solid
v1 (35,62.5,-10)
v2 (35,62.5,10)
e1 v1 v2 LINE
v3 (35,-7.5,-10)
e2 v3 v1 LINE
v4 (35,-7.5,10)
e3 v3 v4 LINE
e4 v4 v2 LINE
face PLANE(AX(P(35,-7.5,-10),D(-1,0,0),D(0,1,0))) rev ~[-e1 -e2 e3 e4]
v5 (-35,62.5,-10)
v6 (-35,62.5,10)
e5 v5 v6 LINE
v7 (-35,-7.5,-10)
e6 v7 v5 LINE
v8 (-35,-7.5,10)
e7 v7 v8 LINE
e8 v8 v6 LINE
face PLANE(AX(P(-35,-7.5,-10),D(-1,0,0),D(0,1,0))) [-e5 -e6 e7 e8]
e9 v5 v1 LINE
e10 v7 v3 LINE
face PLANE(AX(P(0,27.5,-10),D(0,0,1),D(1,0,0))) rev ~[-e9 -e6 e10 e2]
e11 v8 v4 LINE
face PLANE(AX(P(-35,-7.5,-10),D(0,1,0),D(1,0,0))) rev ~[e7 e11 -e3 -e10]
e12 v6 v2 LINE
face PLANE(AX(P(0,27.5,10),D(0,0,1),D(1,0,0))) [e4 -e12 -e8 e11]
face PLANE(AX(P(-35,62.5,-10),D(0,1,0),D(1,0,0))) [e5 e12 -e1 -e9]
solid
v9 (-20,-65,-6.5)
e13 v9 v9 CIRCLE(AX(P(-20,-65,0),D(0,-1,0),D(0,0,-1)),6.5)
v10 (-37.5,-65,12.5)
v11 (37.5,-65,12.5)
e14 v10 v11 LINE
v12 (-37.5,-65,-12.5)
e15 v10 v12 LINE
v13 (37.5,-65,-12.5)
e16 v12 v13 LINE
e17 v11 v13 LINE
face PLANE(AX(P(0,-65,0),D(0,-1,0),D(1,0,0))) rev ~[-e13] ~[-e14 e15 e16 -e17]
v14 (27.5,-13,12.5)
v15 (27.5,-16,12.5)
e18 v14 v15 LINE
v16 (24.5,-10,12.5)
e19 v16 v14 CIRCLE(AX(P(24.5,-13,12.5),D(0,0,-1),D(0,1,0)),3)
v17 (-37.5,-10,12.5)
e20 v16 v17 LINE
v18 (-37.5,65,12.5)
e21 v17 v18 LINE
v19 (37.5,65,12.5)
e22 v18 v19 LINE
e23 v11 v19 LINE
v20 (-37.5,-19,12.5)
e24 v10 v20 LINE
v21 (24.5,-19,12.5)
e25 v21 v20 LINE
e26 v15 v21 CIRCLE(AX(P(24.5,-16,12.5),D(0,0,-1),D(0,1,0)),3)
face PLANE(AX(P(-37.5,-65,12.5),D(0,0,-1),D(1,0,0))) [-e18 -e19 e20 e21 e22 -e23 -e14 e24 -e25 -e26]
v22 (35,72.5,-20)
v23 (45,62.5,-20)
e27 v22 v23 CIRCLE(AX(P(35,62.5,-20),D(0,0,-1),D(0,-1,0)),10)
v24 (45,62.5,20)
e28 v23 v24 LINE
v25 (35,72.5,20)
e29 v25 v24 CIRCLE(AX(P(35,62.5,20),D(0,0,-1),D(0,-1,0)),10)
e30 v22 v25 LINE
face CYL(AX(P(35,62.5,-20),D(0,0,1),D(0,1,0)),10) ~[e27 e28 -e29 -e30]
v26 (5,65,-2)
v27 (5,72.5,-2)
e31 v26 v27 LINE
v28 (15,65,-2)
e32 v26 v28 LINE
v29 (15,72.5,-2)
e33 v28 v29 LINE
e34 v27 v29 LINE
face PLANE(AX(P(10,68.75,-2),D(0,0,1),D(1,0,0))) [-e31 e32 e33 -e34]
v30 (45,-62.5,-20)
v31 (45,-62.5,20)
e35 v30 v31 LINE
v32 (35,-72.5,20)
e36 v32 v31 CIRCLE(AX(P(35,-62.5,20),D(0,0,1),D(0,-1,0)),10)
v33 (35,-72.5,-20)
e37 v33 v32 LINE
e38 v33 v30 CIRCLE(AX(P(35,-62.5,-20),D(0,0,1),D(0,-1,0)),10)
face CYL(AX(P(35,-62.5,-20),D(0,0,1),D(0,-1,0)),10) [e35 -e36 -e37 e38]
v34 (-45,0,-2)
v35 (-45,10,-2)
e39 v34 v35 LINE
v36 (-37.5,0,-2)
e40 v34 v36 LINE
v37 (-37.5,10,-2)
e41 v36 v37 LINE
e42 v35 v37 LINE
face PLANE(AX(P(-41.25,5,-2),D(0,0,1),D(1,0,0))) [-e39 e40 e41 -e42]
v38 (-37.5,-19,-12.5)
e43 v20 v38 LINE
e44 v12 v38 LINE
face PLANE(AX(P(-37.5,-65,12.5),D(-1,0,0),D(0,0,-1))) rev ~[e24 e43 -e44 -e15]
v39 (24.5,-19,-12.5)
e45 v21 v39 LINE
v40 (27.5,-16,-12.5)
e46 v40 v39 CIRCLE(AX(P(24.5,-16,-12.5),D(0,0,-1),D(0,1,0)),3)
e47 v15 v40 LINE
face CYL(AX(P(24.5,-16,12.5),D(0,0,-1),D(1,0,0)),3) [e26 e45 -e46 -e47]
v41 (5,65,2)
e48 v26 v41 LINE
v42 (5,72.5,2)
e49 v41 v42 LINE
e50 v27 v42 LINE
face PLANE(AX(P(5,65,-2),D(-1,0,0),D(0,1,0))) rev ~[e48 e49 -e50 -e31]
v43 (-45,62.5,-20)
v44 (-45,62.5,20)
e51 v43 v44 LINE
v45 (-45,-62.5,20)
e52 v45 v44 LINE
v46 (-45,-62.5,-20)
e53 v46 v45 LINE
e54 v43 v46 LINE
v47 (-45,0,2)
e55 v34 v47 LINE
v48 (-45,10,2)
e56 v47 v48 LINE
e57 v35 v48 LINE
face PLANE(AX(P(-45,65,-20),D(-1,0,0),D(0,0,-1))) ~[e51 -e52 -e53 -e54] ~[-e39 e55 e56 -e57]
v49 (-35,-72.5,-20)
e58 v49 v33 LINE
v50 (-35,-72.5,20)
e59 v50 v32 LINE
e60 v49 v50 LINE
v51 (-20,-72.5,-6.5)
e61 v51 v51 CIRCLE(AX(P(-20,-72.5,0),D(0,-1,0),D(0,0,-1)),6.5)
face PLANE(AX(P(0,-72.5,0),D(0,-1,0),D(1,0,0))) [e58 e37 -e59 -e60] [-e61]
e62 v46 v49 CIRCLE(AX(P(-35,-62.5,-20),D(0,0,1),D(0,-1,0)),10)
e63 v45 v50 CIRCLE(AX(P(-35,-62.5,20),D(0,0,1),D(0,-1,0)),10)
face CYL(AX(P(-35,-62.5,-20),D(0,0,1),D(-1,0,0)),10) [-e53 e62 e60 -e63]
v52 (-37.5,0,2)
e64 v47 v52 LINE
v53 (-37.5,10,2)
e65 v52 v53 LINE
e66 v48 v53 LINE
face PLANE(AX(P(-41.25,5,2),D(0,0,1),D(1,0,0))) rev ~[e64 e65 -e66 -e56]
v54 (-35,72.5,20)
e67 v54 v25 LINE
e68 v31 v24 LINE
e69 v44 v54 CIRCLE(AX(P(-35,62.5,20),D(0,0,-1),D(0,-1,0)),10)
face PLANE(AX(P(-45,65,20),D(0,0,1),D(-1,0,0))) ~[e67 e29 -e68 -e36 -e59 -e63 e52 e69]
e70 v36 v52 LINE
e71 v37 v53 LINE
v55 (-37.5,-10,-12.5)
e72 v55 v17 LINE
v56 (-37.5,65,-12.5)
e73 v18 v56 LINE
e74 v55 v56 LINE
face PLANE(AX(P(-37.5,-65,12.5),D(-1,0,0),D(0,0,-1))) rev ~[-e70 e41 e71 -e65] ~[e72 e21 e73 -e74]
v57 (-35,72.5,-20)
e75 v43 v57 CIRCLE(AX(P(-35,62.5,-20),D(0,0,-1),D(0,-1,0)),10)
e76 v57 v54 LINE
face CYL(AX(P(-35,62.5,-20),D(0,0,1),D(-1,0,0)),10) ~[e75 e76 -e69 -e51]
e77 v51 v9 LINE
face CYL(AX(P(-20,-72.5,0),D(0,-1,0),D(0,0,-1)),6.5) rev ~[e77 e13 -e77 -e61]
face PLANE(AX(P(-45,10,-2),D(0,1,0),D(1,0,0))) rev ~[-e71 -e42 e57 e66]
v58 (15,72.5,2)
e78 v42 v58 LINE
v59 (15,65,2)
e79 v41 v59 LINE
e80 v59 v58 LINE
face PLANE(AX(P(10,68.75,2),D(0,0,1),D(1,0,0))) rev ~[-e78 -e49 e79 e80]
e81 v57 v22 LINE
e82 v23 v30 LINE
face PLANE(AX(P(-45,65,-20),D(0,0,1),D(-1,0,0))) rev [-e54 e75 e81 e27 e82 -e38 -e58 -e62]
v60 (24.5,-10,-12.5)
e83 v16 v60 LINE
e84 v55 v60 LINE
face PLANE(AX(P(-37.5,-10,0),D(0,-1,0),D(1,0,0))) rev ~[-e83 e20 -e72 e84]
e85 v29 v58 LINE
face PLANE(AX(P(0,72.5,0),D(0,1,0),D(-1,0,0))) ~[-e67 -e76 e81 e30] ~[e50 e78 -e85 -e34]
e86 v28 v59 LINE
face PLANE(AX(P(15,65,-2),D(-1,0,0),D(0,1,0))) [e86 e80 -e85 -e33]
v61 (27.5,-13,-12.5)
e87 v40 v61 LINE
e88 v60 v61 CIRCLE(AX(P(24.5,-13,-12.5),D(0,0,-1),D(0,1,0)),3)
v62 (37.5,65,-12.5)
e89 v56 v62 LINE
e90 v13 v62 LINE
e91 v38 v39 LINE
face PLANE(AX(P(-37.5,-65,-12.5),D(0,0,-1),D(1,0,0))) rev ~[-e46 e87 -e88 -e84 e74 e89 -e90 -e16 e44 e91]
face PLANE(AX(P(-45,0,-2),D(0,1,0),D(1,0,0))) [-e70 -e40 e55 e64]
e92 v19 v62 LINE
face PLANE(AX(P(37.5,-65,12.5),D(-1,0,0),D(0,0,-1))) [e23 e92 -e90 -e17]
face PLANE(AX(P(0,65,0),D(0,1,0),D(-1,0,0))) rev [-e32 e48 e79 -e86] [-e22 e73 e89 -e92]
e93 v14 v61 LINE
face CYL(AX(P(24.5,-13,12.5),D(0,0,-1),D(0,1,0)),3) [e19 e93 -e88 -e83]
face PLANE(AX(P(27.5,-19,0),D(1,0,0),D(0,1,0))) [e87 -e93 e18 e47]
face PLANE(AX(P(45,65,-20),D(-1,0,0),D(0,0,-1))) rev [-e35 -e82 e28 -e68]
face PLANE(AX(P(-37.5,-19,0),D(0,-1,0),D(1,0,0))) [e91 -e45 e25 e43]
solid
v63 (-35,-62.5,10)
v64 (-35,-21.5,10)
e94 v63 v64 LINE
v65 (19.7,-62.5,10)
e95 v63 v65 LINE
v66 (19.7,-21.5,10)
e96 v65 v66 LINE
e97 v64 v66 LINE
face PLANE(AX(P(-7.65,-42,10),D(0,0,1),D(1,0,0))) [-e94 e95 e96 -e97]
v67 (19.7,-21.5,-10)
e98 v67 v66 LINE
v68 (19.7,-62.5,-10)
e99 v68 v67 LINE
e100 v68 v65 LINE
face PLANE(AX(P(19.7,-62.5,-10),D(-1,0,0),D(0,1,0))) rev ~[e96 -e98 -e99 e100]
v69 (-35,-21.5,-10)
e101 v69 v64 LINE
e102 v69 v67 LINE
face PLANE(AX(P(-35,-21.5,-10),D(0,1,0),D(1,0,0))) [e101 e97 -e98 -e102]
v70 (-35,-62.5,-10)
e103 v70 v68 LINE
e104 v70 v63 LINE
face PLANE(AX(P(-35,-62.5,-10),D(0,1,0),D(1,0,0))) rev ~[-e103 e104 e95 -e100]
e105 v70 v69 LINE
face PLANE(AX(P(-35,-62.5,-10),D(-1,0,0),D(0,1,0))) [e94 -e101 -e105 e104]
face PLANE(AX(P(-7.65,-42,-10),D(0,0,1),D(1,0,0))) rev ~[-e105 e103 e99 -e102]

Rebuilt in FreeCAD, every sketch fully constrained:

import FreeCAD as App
import Part
import Sketcher
Q = App.Units.Quantity


def edges_at(feature, points):
    """Names of the edges that pass closest to the given points."""
    edges = feature.Shape.Edges
    near = lambda p: min(range(len(edges)), key=lambda i: edges[i].distToShape(Part.Vertex(*p))[0])
    return sorted({f"Edge{near(p) + 1}" for p in points})

doc = App.newDocument("Part")
params = doc.addObject("Spreadsheet::Sheet", "Params")
for row, (alias, value) in enumerate([
    ("sketch1_width", "90 mm"),
    ("sketch1_width2", "75 mm"),
    ("sketch1_height", "40 mm"),
    ("sketch1_height2", "25 mm"),
    ("pad1_length", "65 mm"),
    ("pad1_length2", "65 mm"),
    ("sketch2_width", "90 mm"),
    ("sketch2_height", "40 mm"),
    ("pad2_length", "7.5 mm"),
    ("sketch3_diameter", "13 mm"),
    ("sketch4_width", "65 mm"),
    ("sketch4_height", "9 mm"),
    ("sketch5_width", "65 mm"),
    ("sketch5_height", "9 mm"),
    ("sketch6_width", "10 mm"),
    ("sketch6_width2", "7.5 mm"),
    ("pocket2_length", "2 mm"),
    ("pocket2_length2", "2 mm"),
    ("fillet_radius", "10 mm"),
    ("fillet2_radius", "3 mm"),
    ("sketch7_width", "70 mm"),
    ("pad5_length", "10 mm"),
    ("pad5_length2", "10 mm"),
    ("sketch8_height", "41 mm"),
    ("sketch8_width", "54.7 mm"),
    ("pad6_length", "10 mm"),
    ("pad6_length2", "10 mm"),
], start=1):
    params.set(f"A{row}", alias)
    params.set(f"B{row}", "=" + value)
    params.setAlias(f"B{row}", alias)

body = doc.addObject("PartDesign::Body", "Body")

# Sketch on XZ plane
sketch1 = body.newObject("Sketcher::SketchObject", "Sketch")
sketch1.AttachmentSupport = (doc.getObject("XZ_Plane"), [""])
sketch1.MapMode = "FlatFace"
sketch1.addGeometry([
    Part.LineSegment(App.Vector(-45, -20, 0), App.Vector(-45, 20, 0)),  # 0
    Part.LineSegment(App.Vector(-45, 20, 0), App.Vector(45, 20, 0)),  # 1
    Part.LineSegment(App.Vector(45, 20, 0), App.Vector(45, -20, 0)),  # 2
    Part.LineSegment(App.Vector(45, -20, 0), App.Vector(-45, -20, 0)),  # 3
    Part.LineSegment(App.Vector(38, 12, 0), App.Vector(-38, 12, 0)),  # 4
    Part.LineSegment(App.Vector(-38, 12, 0), App.Vector(-38, -12, 0)),  # 5
    Part.LineSegment(App.Vector(-38, -12, 0), App.Vector(38, -12, 0)),  # 6
    Part.LineSegment(App.Vector(38, -12, 0), App.Vector(38, 12, 0)),  # 7
], False)
sketch1.addConstraint([
    Sketcher.Constraint("Coincident", 0, 2, 1, 1),
    Sketcher.Constraint("Coincident", 1, 2, 2, 1),
    Sketcher.Constraint("Coincident", 2, 2, 3, 1),
    Sketcher.Constraint("Coincident", 3, 2, 0, 1),
    Sketcher.Constraint("Coincident", 4, 2, 5, 1),
    Sketcher.Constraint("Coincident", 5, 2, 6, 1),
    Sketcher.Constraint("Coincident", 6, 2, 7, 1),
    Sketcher.Constraint("Coincident", 7, 2, 4, 1),
    Sketcher.Constraint("Vertical", 0),
    Sketcher.Constraint("Horizontal", 1),
    Sketcher.Constraint("Vertical", 2),
    Sketcher.Constraint("Horizontal", 3),
    Sketcher.Constraint("Horizontal", 4),
    Sketcher.Constraint("Vertical", 5),
    Sketcher.Constraint("Horizontal", 6),
    Sketcher.Constraint("Vertical", 7),
    Sketcher.Constraint("Symmetric", 0, 2, 2, 2, -1, 1),
    Sketcher.Constraint("Symmetric", 4, 2, 6, 2, -1, 1),
    Sketcher.Constraint("DistanceX", 1, 1, 1, 2, Q("90 mm")),
    Sketcher.Constraint("DistanceX", 4, 2, 4, 1, Q("75 mm")),
    Sketcher.Constraint("DistanceY", 0, 1, 0, 2, Q("40 mm")),
    Sketcher.Constraint("DistanceY", 5, 2, 5, 1, Q("25 mm")),
])
sketch1.setExpression("Constraints[18]", "Params.sketch1_width")
sketch1.setExpression("Constraints[19]", "Params.sketch1_width2")
sketch1.setExpression("Constraints[20]", "Params.sketch1_height")
sketch1.setExpression("Constraints[21]", "Params.sketch1_height2")
pad1 = body.newObject("PartDesign::Pad", "Pad")
pad1.Profile = sketch1
pad1.Type = "TwoLengths"
pad1.setExpression("Length", "Params.pad1_length")
pad1.setExpression("Length2", "Params.pad1_length2")
pad1.Reversed = True

# Sketch on XZ plane
sketch2 = body.newObject("Sketcher::SketchObject", "Sketch001")
sketch2.AttachmentSupport = (doc.getObject("XZ_Plane"), [""])
sketch2.MapMode = "FlatFace"
sketch2.AttachmentOffset = App.Placement(App.Vector(0, 0, 65), App.Rotation())
sketch2.addGeometry([
    Part.LineSegment(App.Vector(-45, 20, 0), App.Vector(-45, -20, 0)),
    Part.LineSegment(App.Vector(-45, -20, 0), App.Vector(45, -20, 0)),
    Part.LineSegment(App.Vector(45, -20, 0), App.Vector(45, 20, 0)),
    Part.LineSegment(App.Vector(45, 20, 0), App.Vector(-45, 20, 0)),
], False)
sketch2.addConstraint([
    Sketcher.Constraint("Coincident", 0, 2, 1, 1),
    Sketcher.Constraint("Coincident", 1, 2, 2, 1),
    Sketcher.Constraint("Coincident", 2, 2, 3, 1),
    Sketcher.Constraint("Coincident", 3, 2, 0, 1),
    Sketcher.Constraint("Vertical", 0),
    Sketcher.Constraint("Horizontal", 1),
    Sketcher.Constraint("Vertical", 2),
    Sketcher.Constraint("Horizontal", 3),
    Sketcher.Constraint("Symmetric", 0, 2, 2, 2, -1, 1),
    Sketcher.Constraint("DistanceX", 1, 1, 1, 2, Q("90 mm")),
    Sketcher.Constraint("DistanceY", 0, 2, 0, 1, Q("40 mm")),
])
sketch2.setExpression("Constraints[9]", "Params.sketch2_width")
sketch2.setExpression("Constraints[10]", "Params.sketch2_height")
pad2 = body.newObject("PartDesign::Pad", "Pad001")
pad2.Profile = sketch2
pad2.setExpression("Length", "Params.pad2_length")
doc.recompute()

mirrored = body.newObject("PartDesign::Mirrored", "Mirrored")
mirrored.Originals = [pad2]
mirrored.MirrorPlane = (doc.getObject("XZ_Plane"), [""])
body.Tip = mirrored

# Sketch on XZ plane
sketch3 = body.newObject("Sketcher::SketchObject", "Sketch002")
sketch3.AttachmentSupport = (doc.getObject("XZ_Plane"), [""])
sketch3.MapMode = "FlatFace"
sketch3.AttachmentOffset = App.Placement(App.Vector(0, 0, 72.5), App.Rotation())
sketch3.addGeometry(Part.Circle(App.Vector(-20, 0, 0), App.Vector(0, 0, 1), 6), False)
sketch3.addConstraint([
    Sketcher.Constraint("PointOnObject", 0, 3, -1),
    Sketcher.Constraint("Diameter", 0, Q("13 mm")),
    Sketcher.Constraint("DistanceX", 0, 3, -1, 1, Q("20 mm")),
])
sketch3.setExpression("Constraints[1]", "Params.sketch3_diameter")
pocket1 = body.newObject("PartDesign::Pocket", "Pocket")
pocket1.Profile = sketch3
pocket1.Type = "UpToFirst"

# Sketch on XY plane
sketch4 = body.newObject("Sketcher::SketchObject", "Sketch003")
sketch4.AttachmentSupport = (doc.getObject("XY_Plane"), [""])
sketch4.MapMode = "FlatFace"
sketch4.addGeometry([
    Part.LineSegment(App.Vector(-38, -10, 0), App.Vector(-38, -19, 0)),
    Part.LineSegment(App.Vector(-38, -19, 0), App.Vector(28, -19, 0)),
    Part.LineSegment(App.Vector(28, -19, 0), App.Vector(28, -10, 0)),
    Part.LineSegment(App.Vector(28, -10, 0), App.Vector(-38, -10, 0)),
], False)
sketch4.addConstraint([
    Sketcher.Constraint("Coincident", 0, 2, 1, 1),
    Sketcher.Constraint("Coincident", 1, 2, 2, 1),
    Sketcher.Constraint("Coincident", 2, 2, 3, 1),
    Sketcher.Constraint("Coincident", 3, 2, 0, 1),
    Sketcher.Constraint("Vertical", 0),
    Sketcher.Constraint("Horizontal", 1),
    Sketcher.Constraint("Vertical", 2),
    Sketcher.Constraint("Horizontal", 3),
    Sketcher.Constraint("DistanceX", 1, 1, 1, 2, Q("65 mm")),
    Sketcher.Constraint("DistanceY", 0, 2, 0, 1, Q("9 mm")),
    Sketcher.Constraint("DistanceY", 0, 2, -1, 1, Q("19 mm")),
    Sketcher.Constraint("DistanceX", 0, 2, -1, 1, Q("37.5 mm")),
])
sketch4.setExpression("Constraints[8]", "Params.sketch4_width")
sketch4.setExpression("Constraints[9]", "Params.sketch4_height")
pad3 = body.newObject("PartDesign::Pad", "Pad002")
pad3.Profile = sketch4
pad3.Type = "UpToFirst"

# Sketch on XY plane
sketch5 = body.newObject("Sketcher::SketchObject", "Sketch004")
sketch5.AttachmentSupport = (doc.getObject("XY_Plane"), [""])
sketch5.MapMode = "FlatFace"
sketch5.addGeometry([
    Part.LineSegment(App.Vector(-38, -10, 0), App.Vector(-38, -19, 0)),
    Part.LineSegment(App.Vector(-38, -19, 0), App.Vector(28, -19, 0)),
    Part.LineSegment(App.Vector(28, -19, 0), App.Vector(28, -10, 0)),
    Part.LineSegment(App.Vector(28, -10, 0), App.Vector(-38, -10, 0)),
], False)
sketch5.addConstraint([
    Sketcher.Constraint("Coincident", 0, 2, 1, 1),
    Sketcher.Constraint("Coincident", 1, 2, 2, 1),
    Sketcher.Constraint("Coincident", 2, 2, 3, 1),
    Sketcher.Constraint("Coincident", 3, 2, 0, 1),
    Sketcher.Constraint("Vertical", 0),
    Sketcher.Constraint("Horizontal", 1),
    Sketcher.Constraint("Vertical", 2),
    Sketcher.Constraint("Horizontal", 3),
    Sketcher.Constraint("DistanceX", 1, 1, 1, 2, Q("65 mm")),
    Sketcher.Constraint("DistanceY", 0, 2, 0, 1, Q("9 mm")),
    Sketcher.Constraint("DistanceY", 0, 2, -1, 1, Q("19 mm")),
    Sketcher.Constraint("DistanceX", 0, 2, -1, 1, Q("37.5 mm")),
])
sketch5.setExpression("Constraints[8]", "Params.sketch5_width")
sketch5.setExpression("Constraints[9]", "Params.sketch5_height")
pad4 = body.newObject("PartDesign::Pad", "Pad003")
pad4.Profile = sketch5
pad4.Type = "UpToFirst"
pad4.Reversed = True

# Sketch on XY plane
sketch6 = body.newObject("Sketcher::SketchObject", "Sketch005")
sketch6.AttachmentSupport = (doc.getObject("XY_Plane"), [""])
sketch6.MapMode = "FlatFace"
sketch6.addGeometry([
    Part.LineSegment(App.Vector(5, 72, 0), App.Vector(5, 65, 0)),  # 0
    Part.LineSegment(App.Vector(5, 65, 0), App.Vector(15, 65, 0)),  # 1
    Part.LineSegment(App.Vector(15, 65, 0), App.Vector(15, 72, 0)),  # 2
    Part.LineSegment(App.Vector(15, 72, 0), App.Vector(5, 72, 0)),  # 3
    Part.LineSegment(App.Vector(-45, 10, 0), App.Vector(-45, 0, 0)),  # 4
    Part.LineSegment(App.Vector(-45, 0, 0), App.Vector(-38, 0, 0)),  # 5
    Part.LineSegment(App.Vector(-38, 0, 0), App.Vector(-38, 10, 0)),  # 6
    Part.LineSegment(App.Vector(-38, 10, 0), App.Vector(-45, 10, 0)),  # 7
], False)
sketch6.addConstraint([
    Sketcher.Constraint("Coincident", 0, 2, 1, 1),
    Sketcher.Constraint("Coincident", 1, 2, 2, 1),
    Sketcher.Constraint("Coincident", 2, 2, 3, 1),
    Sketcher.Constraint("Coincident", 3, 2, 0, 1),
    Sketcher.Constraint("Coincident", 4, 2, 5, 1),
    Sketcher.Constraint("Coincident", 5, 2, 6, 1),
    Sketcher.Constraint("Coincident", 6, 2, 7, 1),
    Sketcher.Constraint("Coincident", 7, 2, 4, 1),
    Sketcher.Constraint("Vertical", 0),
    Sketcher.Constraint("Horizontal", 1),
    Sketcher.Constraint("Vertical", 2),
    Sketcher.Constraint("Horizontal", 3),
    Sketcher.Constraint("Vertical", 4),
    Sketcher.Constraint("Horizontal", 5),
    Sketcher.Constraint("Vertical", 6),
    Sketcher.Constraint("Horizontal", 7),
    Sketcher.Constraint("PointOnObject", 4, 2, -1),
    Sketcher.Constraint("Equal", 7, 0),
    Sketcher.Constraint("Equal", 3, 4),
    Sketcher.Constraint("DistanceX", 1, 1, 1, 2, Q("10 mm")),
    Sketcher.Constraint("DistanceX", 5, 1, 5, 2, Q("7.5 mm")),
    Sketcher.Constraint("DistanceX", -1, 1, 0, 2, Q("5 mm")),
    Sketcher.Constraint("DistanceY", -1, 1, 0, 2, Q("65 mm")),
    Sketcher.Constraint("DistanceX", 4, 2, -1, 1, Q("45 mm")),
])
sketch6.setExpression("Constraints[19]", "Params.sketch6_width")
sketch6.setExpression("Constraints[20]", "Params.sketch6_width2")
pocket2 = body.newObject("PartDesign::Pocket", "Pocket001")
pocket2.Profile = sketch6
pocket2.Type = "TwoLengths"
pocket2.setExpression("Length", "Params.pocket2_length")
pocket2.setExpression("Length2", "Params.pocket2_length2")
pocket2.Reversed = True
doc.recompute()

fillet = body.newObject("PartDesign::Fillet", "Fillet")
fillet.Base = (pocket2, edges_at(pocket2, [
    (45, -72.5, 0),
    (-45, -72.5, 0),
    (45, 72.5, 0),
    (-45, 72.5, 0),
]))
fillet.setExpression("Radius", "Params.fillet_radius")
doc.recompute()

fillet2 = body.newObject("PartDesign::Fillet", "Fillet001")
fillet2.Base = (fillet, edges_at(fillet, [(27.5, -10, 0), (27.5, -19, 0)]))
fillet2.setExpression("Radius", "Params.fillet2_radius")
body2 = doc.addObject("PartDesign::Body", "Body001")

# Sketch on XY plane
sketch7 = body2.newObject("Sketcher::SketchObject", "Sketch006")
sketch7.AttachmentSupport = (doc.getObject("XY_Plane001"), [""])
sketch7.MapMode = "FlatFace"
sketch7.addGeometry([
    Part.LineSegment(App.Vector(-35, 62, 0), App.Vector(-35, -8, 0)),
    Part.LineSegment(App.Vector(-35, -8, 0), App.Vector(35, -8, 0)),
    Part.LineSegment(App.Vector(35, -8, 0), App.Vector(35, 62, 0)),
    Part.LineSegment(App.Vector(35, 62, 0), App.Vector(-35, 62, 0)),
], False)
sketch7.addConstraint([
    Sketcher.Constraint("Coincident", 0, 2, 1, 1),
    Sketcher.Constraint("Coincident", 1, 2, 2, 1),
    Sketcher.Constraint("Coincident", 2, 2, 3, 1),
    Sketcher.Constraint("Coincident", 3, 2, 0, 1),
    Sketcher.Constraint("Vertical", 0),
    Sketcher.Constraint("Horizontal", 1),
    Sketcher.Constraint("Vertical", 2),
    Sketcher.Constraint("Horizontal", 3),
    Sketcher.Constraint("Equal", 3, 0),
    Sketcher.Constraint("DistanceX", 1, 1, 1, 2, Q("70 mm")),
    Sketcher.Constraint("DistanceX", 0, 2, -1, 1, Q("35 mm")),
    Sketcher.Constraint("DistanceY", 0, 2, -1, 1, Q("7.5 mm")),
])
sketch7.setExpression("Constraints[9]", "Params.sketch7_width")
pad5 = body2.newObject("PartDesign::Pad", "Pad004")
pad5.Profile = sketch7
pad5.Type = "TwoLengths"
pad5.setExpression("Length", "Params.pad5_length")
pad5.setExpression("Length2", "Params.pad5_length2")
body3 = doc.addObject("PartDesign::Body", "Body002")

# Sketch on XY plane
sketch8 = body3.newObject("Sketcher::SketchObject", "Sketch007")
sketch8.AttachmentSupport = (doc.getObject("XY_Plane002"), [""])
sketch8.MapMode = "FlatFace"
sketch8.addGeometry([
    Part.LineSegment(App.Vector(-35, -22, 0), App.Vector(-35, -62, 0)),
    Part.LineSegment(App.Vector(-35, -62, 0), App.Vector(20, -62, 0)),
    Part.LineSegment(App.Vector(20, -62, 0), App.Vector(20, -22, 0)),
    Part.LineSegment(App.Vector(20, -22, 0), App.Vector(-35, -22, 0)),
], False)
sketch8.addConstraint([
    Sketcher.Constraint("Coincident", 0, 2, 1, 1),
    Sketcher.Constraint("Coincident", 1, 2, 2, 1),
    Sketcher.Constraint("Coincident", 2, 2, 3, 1),
    Sketcher.Constraint("Coincident", 3, 2, 0, 1),
    Sketcher.Constraint("Vertical", 0),
    Sketcher.Constraint("Horizontal", 1),
    Sketcher.Constraint("Vertical", 2),
    Sketcher.Constraint("Horizontal", 3),
    Sketcher.Constraint("DistanceY", 0, 2, 0, 1, Q("41 mm")),
    Sketcher.Constraint("DistanceX", 1, 1, 1, 2, Q("54.7 mm")),
    Sketcher.Constraint("DistanceX", 0, 2, -1, 1, Q("35 mm")),
    Sketcher.Constraint("DistanceY", 0, 2, -1, 1, Q("62.5 mm")),
])
sketch8.setExpression("Constraints[8]", "Params.sketch8_height")
sketch8.setExpression("Constraints[9]", "Params.sketch8_width")
pad6 = body3.newObject("PartDesign::Pad", "Pad005")
pad6.Profile = sketch8
pad6.Type = "TwoLengths"
pad6.setExpression("Length", "Params.pad6_length")
pad6.setExpression("Length2", "Params.pad6_length2")

doc.recompute()
